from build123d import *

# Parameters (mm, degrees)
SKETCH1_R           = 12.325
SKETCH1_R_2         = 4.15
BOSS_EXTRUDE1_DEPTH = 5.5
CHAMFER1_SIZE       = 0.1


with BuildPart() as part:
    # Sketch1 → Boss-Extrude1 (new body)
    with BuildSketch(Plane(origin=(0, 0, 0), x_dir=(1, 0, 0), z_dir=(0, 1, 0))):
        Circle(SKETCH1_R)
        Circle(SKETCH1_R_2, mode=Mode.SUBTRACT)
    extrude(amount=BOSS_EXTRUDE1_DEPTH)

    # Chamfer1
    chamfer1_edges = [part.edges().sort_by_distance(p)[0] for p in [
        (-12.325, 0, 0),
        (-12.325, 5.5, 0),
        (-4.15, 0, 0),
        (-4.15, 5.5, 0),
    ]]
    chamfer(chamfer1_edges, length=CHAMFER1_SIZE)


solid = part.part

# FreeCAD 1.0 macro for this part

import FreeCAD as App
import Part
import Sketcher
Q = App.Units.Quantity


def edges_at(feature, points):
    """Names of the edges that pass closest to the given points."""
    edges = feature.Shape.Edges
    near = lambda p: min(range(len(edges)), key=lambda i: edges[i].distToShape(Part.Vertex(*p))[0])
    return sorted({f"Edge{near(p) + 1}" for p in points})

doc = App.newDocument("Part")
body = doc.addObject("PartDesign::Body", "Body")

# Sketch on XZ plane
sketch1 = doc.addObject("Sketcher::SketchObject", "Sketch")
body.addObject(sketch1)
sketch1.AttachmentSupport = (doc.XZ_Plane, [""])
sketch1.MapMode = "FlatFace"
sketch1.addGeometry([
    Part.Circle(App.Vector(0, 0, 0), App.Vector(0, 0, 1), 12.3),
    Part.Circle(App.Vector(0, 0, 0), App.Vector(0, 0, 1), 4.2),
], False)
sketch1.addConstraint([
    Sketcher.Constraint("Coincident", 0, 3, -1, 1),
    Sketcher.Constraint("Coincident", 1, 3, -1, 1),
    Sketcher.Constraint("Diameter", 1, Q("8.3 mm")),
    Sketcher.Constraint("Diameter", 0, Q("24.65 mm")),
])
pad1 = doc.addObject("PartDesign::Pad", "Pad")
body.addObject(pad1)
pad1.Profile = sketch1
pad1.Length = 5.5
pad1.Reversed = True
doc.recompute()

chamfer = doc.addObject("PartDesign::Chamfer", "Chamfer")
body.addObject(chamfer)
chamfer.Base = (pad1, edges_at(pad1, [
    (-12.325, 0, 0),
    (-12.325, 5.5, 0),
    (-4.15, 0, 0),
    (-4.15, 5.5, 0),
]))
chamfer.Size = 0.1

doc.recompute()
